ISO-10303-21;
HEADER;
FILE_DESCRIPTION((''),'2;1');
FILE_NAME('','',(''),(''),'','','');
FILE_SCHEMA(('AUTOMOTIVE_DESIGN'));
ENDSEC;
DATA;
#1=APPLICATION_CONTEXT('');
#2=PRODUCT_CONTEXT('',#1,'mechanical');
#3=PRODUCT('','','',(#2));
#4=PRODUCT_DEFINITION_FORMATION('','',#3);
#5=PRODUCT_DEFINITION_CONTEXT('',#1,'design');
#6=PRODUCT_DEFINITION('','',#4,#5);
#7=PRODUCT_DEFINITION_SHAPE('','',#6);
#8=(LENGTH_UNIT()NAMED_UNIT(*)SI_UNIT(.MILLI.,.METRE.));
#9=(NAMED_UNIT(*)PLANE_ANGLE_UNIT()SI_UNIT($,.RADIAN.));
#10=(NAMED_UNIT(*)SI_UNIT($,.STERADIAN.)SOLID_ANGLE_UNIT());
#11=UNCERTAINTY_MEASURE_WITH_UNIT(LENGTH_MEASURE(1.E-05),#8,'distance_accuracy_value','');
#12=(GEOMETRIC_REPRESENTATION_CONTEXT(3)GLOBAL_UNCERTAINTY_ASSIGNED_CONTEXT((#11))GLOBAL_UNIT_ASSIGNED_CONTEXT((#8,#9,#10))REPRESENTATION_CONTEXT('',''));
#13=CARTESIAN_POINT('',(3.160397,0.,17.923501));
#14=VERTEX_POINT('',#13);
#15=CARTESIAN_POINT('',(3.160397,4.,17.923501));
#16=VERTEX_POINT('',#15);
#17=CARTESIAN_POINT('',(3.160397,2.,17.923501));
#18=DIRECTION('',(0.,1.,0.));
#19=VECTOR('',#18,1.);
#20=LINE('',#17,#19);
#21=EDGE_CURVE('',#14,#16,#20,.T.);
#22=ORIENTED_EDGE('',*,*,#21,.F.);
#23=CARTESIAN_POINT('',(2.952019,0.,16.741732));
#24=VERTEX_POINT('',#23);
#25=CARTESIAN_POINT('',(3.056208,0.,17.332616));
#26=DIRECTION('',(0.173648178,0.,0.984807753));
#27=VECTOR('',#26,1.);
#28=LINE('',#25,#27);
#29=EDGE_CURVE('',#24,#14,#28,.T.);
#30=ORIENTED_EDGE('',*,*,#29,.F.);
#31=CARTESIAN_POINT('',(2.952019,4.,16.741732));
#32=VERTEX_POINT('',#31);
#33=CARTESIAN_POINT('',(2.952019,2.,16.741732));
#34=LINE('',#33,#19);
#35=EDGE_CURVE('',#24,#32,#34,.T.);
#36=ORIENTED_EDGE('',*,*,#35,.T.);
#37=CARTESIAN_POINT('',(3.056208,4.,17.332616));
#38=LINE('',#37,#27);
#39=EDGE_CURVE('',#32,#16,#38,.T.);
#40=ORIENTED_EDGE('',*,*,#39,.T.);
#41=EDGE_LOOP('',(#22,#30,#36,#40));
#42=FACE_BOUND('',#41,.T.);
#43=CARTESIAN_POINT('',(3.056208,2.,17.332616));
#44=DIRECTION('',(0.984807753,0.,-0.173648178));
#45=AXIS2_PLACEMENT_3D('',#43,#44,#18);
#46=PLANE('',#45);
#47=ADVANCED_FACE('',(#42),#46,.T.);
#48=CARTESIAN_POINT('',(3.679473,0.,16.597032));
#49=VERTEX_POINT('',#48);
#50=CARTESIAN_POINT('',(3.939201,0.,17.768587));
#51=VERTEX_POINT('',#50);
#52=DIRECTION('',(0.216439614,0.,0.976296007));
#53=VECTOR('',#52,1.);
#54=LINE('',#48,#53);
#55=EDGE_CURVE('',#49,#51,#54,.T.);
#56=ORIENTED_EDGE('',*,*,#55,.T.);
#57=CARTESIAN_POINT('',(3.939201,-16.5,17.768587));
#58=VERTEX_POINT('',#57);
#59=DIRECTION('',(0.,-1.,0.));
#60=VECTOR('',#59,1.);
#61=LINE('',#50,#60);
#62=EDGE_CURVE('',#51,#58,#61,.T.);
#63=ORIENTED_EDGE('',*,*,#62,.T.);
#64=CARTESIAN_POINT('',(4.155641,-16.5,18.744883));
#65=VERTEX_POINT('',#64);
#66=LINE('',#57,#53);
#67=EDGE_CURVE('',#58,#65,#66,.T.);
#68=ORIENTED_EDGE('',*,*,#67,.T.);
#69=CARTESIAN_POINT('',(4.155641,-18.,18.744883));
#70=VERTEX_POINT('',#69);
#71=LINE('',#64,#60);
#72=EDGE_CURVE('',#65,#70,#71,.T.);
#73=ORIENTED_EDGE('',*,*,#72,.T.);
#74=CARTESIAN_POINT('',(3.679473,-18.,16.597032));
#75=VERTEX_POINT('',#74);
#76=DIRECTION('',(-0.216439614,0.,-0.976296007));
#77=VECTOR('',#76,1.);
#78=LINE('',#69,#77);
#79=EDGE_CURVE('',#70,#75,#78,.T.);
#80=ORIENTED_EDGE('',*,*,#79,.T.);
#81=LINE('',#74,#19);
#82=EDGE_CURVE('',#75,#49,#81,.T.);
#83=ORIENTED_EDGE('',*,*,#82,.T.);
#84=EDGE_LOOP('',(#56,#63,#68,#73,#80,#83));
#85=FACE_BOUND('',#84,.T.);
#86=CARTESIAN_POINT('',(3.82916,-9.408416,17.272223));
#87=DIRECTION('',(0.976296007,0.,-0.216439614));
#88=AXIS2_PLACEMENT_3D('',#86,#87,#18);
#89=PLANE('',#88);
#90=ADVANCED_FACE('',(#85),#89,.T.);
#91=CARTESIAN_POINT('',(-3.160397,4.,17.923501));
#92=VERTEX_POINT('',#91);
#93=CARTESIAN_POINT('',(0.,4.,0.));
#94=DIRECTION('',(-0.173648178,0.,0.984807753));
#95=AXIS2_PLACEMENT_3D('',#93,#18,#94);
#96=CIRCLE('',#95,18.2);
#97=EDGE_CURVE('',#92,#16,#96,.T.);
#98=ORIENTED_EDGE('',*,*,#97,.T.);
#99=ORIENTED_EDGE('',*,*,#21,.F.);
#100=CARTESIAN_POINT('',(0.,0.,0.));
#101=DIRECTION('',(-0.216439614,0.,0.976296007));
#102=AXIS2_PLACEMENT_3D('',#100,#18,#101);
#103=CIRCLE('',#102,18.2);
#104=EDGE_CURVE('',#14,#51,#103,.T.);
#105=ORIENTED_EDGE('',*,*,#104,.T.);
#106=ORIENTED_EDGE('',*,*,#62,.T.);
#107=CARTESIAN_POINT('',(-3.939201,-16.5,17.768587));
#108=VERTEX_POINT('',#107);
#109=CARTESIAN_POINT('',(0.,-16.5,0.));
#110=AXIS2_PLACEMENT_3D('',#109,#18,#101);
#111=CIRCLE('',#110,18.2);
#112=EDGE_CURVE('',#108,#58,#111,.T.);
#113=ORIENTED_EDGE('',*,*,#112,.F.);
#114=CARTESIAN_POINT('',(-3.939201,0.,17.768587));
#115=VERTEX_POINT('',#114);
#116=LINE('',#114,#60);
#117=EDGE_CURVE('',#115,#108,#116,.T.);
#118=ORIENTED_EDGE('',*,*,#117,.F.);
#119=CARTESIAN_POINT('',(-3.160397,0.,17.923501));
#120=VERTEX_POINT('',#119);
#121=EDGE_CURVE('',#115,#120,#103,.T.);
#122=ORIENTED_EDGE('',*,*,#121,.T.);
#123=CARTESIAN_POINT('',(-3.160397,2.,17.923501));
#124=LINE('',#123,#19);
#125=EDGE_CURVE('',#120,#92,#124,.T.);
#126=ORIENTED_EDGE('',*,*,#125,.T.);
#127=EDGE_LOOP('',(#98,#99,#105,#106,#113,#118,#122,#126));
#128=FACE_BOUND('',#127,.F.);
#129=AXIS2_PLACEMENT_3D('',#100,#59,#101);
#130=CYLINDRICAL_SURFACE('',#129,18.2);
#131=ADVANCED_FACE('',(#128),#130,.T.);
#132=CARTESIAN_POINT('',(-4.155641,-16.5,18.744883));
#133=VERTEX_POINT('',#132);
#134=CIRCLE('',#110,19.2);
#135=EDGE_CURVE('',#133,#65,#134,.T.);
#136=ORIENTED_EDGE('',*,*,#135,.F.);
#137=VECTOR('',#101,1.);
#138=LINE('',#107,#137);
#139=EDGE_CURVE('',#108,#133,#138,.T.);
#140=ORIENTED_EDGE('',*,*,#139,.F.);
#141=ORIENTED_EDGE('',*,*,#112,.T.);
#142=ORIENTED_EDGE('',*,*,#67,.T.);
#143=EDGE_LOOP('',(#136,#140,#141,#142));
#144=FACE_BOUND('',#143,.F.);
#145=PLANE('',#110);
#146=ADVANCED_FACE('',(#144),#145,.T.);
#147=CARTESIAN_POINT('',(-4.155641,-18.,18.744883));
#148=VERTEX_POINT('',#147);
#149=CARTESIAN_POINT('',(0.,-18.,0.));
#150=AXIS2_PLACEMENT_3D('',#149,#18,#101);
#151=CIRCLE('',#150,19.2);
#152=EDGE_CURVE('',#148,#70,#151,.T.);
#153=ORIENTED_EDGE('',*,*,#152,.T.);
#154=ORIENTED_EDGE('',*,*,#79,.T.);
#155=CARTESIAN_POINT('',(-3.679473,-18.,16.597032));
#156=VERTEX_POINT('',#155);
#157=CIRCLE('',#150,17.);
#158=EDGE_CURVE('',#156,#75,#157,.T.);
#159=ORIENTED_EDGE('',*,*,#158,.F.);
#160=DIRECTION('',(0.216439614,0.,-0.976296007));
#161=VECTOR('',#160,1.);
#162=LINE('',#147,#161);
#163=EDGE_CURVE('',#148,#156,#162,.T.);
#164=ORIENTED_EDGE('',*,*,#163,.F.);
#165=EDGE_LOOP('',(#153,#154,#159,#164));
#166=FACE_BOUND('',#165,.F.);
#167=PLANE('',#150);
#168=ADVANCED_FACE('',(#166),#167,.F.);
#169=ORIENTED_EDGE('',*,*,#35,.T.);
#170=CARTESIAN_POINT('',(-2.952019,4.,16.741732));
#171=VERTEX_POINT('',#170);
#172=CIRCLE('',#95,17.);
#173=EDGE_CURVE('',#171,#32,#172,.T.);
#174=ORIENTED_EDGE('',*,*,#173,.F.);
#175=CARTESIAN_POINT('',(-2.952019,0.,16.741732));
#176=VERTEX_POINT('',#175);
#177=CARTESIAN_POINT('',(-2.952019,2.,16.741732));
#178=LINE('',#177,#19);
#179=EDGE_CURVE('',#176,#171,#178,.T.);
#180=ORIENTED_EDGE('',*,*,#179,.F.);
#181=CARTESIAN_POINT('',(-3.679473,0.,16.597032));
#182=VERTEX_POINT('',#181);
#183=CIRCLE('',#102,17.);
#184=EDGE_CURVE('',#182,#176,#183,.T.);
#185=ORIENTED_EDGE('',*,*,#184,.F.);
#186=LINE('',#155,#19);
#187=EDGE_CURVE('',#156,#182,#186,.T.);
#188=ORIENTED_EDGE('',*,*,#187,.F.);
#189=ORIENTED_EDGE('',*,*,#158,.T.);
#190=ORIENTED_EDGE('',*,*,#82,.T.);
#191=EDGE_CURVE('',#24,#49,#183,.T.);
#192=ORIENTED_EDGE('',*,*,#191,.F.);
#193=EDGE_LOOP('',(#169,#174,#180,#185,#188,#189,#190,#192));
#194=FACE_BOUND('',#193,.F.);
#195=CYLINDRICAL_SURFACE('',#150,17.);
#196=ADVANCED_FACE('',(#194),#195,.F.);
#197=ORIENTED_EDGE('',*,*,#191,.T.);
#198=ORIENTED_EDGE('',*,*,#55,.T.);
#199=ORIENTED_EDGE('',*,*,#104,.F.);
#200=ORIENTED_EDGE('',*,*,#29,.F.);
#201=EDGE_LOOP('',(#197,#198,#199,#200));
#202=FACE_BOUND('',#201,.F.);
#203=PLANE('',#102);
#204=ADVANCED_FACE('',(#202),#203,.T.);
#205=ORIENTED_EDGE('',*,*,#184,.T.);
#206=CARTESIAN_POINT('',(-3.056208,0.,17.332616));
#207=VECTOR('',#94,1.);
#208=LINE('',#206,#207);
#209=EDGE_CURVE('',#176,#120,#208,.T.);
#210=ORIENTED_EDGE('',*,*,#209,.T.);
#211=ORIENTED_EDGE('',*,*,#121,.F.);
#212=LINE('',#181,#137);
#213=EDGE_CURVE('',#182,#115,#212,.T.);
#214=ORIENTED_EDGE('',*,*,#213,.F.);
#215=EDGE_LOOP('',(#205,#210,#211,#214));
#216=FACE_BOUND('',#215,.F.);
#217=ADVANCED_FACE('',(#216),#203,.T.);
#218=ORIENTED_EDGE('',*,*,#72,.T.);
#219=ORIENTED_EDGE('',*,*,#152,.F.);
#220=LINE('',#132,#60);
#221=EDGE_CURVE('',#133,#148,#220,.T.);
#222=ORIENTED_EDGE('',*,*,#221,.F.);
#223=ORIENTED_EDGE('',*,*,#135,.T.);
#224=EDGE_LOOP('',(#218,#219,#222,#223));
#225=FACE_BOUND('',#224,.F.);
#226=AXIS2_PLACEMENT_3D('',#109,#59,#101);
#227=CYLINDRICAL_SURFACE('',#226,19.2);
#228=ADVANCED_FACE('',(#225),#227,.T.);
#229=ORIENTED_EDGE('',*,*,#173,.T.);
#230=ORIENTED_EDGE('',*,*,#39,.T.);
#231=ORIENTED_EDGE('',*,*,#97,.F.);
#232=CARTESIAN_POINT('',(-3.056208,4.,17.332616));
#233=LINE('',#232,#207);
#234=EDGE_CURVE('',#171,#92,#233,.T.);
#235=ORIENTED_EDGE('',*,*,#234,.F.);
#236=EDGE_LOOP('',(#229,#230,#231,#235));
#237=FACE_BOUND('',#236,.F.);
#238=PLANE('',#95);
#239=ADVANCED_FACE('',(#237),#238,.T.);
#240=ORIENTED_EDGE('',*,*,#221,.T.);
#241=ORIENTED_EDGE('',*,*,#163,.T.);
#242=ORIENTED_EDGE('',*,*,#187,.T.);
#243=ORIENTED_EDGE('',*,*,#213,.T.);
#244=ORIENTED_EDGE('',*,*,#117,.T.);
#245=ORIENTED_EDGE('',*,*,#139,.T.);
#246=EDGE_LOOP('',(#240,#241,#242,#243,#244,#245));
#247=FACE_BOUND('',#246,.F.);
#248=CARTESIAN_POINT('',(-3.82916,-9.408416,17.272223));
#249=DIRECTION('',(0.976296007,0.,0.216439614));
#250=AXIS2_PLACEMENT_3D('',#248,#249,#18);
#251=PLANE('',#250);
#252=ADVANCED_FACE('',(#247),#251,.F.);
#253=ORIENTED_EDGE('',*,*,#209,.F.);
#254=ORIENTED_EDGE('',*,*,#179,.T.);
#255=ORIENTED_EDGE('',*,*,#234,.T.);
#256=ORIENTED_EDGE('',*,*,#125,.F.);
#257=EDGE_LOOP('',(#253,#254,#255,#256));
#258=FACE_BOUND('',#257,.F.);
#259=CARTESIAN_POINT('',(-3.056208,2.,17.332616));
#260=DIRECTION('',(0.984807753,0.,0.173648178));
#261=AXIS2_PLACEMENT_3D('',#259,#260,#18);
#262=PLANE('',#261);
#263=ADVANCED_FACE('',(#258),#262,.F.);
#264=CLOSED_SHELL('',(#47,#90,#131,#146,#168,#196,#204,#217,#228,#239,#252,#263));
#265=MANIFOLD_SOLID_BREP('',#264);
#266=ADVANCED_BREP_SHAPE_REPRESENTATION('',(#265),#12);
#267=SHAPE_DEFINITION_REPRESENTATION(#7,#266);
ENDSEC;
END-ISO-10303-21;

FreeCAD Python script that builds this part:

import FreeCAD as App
import Part
import Sketcher

V = App.Vector
Q = App.Units.Quantity

doc = App.newDocument("Part")
body = doc.addObject("PartDesign::Body", "Body")

# Sketch on an angled plane
sketch1 = body.newObject("Sketcher::SketchObject", "Sketch")
sketch1.Placement = App.Placement(V(0, 0, 0), App.Rotation(V(0, 1, 0), V(-0.216439614, 0, 0.976296007), V(0.976296007, 0, 0.216439614), "ZXY"))
sketch1.addGeometry(Part.LineSegment(V(0, 18.2, 0), V(-16.5, 18.2, 0)), False)
sketch1.addGeometry(Part.LineSegment(V(-16.5, 18.2, 0), V(-16.5, 19.2, 0)), False)
sketch1.addGeometry(Part.LineSegment(V(-16.5, 19.2, 0), V(-18, 19.2, 0)), False)
sketch1.addGeometry(Part.LineSegment(V(-18, 19.2, 0), V(-18, 17, 0)), False)
sketch1.addGeometry(Part.LineSegment(V(-18, 17, 0), V(0, 17, 0)), False)
sketch1.addGeometry(Part.LineSegment(V(0, 17, 0), V(0, 18.2, 0)), False)
sketch1.addConstraint(Sketcher.Constraint("Coincident", 0, 2, 1, 1))
sketch1.addConstraint(Sketcher.Constraint("Coincident", 1, 2, 2, 1))
sketch1.addConstraint(Sketcher.Constraint("Coincident", 2, 2, 3, 1))
sketch1.addConstraint(Sketcher.Constraint("Coincident", 3, 2, 4, 1))
sketch1.addConstraint(Sketcher.Constraint("Coincident", 4, 2, 5, 1))
sketch1.addConstraint(Sketcher.Constraint("Coincident", 5, 2, 0, 1))
sketch1.addConstraint(Sketcher.Constraint("Horizontal", 0))
sketch1.addConstraint(Sketcher.Constraint("Vertical", 1))
sketch1.addConstraint(Sketcher.Constraint("Horizontal", 2))
sketch1.addConstraint(Sketcher.Constraint("Vertical", 3))
sketch1.addConstraint(Sketcher.Constraint("Horizontal", 4))
sketch1.addConstraint(Sketcher.Constraint("Vertical", 5))
sketch1.addConstraint(Sketcher.Constraint("PointOnObject", 4, 2, -2))
sketch1.addConstraint(Sketcher.Constraint("DistanceX", 4, 1, 4, 2, Q("18 mm")))
sketch1.addConstraint(Sketcher.Constraint("DistanceY", 1, 1, 1, 2, Q("1 mm")))
sketch1.addConstraint(Sketcher.Constraint("DistanceX", 0, 2, 0, 1, Q("16.5 mm")))
sketch1.addConstraint(Sketcher.Constraint("DistanceY", 3, 2, 3, 1, Q("2.2 mm")))
sketch1.addConstraint(Sketcher.Constraint("DistanceY", -1, 1, 3, 2, Q("17 mm")))
revolution = body.newObject("PartDesign::Revolution", "Revolution")
revolution.Profile = sketch1
revolution.ReferenceAxis = (sketch1, ["H_Axis"])
revolution.Angle = 25

# Sketch on an angled plane
sketch2 = body.newObject("Sketcher::SketchObject", "Sketch001")
sketch2.Placement = App.Placement(V(0, 0, 0), App.Rotation(V(0, 1, 0), V(-0.173648178, 0, 0.984807753), V(0.984807753, 0, 0.173648178), "ZXY"))
sketch2.addGeometry(Part.LineSegment(V(0, 18.2, 0), V(0, 17, 0)), False)
sketch2.addGeometry(Part.LineSegment(V(0, 17, 0), V(4, 17, 0)), False)
sketch2.addGeometry(Part.LineSegment(V(4, 17, 0), V(4, 18.2, 0)), False)
sketch2.addGeometry(Part.LineSegment(V(4, 18.2, 0), V(0, 18.2, 0)), False)
sketch2.addConstraint(Sketcher.Constraint("Coincident", 0, 2, 1, 1))
sketch2.addConstraint(Sketcher.Constraint("Coincident", 1, 2, 2, 1))
sketch2.addConstraint(Sketcher.Constraint("Coincident", 2, 2, 3, 1))
sketch2.addConstraint(Sketcher.Constraint("Coincident", 3, 2, 0, 1))
sketch2.addConstraint(Sketcher.Constraint("Vertical", 0))
sketch2.addConstraint(Sketcher.Constraint("Horizontal", 1))
sketch2.addConstraint(Sketcher.Constraint("Vertical", 2))
sketch2.addConstraint(Sketcher.Constraint("Horizontal", 3))
sketch2.addConstraint(Sketcher.Constraint("PointOnObject", 0, 2, -2))
sketch2.addConstraint(Sketcher.Constraint("DistanceX", 1, 1, 1, 2, Q("4 mm")))
sketch2.addConstraint(Sketcher.Constraint("DistanceY", 0, 2, 0, 1, Q("1.2 mm")))
sketch2.addConstraint(Sketcher.Constraint("DistanceY", -1, 1, 0, 2, Q("17 mm")))
revolution2 = body.newObject("PartDesign::Revolution", "Revolution001")
revolution2.Profile = sketch2
revolution2.ReferenceAxis = (sketch2, ["H_Axis"])
revolution2.Angle = 20

doc.recompute()
